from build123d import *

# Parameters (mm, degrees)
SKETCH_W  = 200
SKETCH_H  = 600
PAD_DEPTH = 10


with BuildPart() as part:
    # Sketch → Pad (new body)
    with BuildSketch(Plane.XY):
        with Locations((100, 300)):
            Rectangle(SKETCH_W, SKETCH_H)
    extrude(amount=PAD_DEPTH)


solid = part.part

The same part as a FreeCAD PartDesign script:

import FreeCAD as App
import Part
import Sketcher
from FreeCAD import Vector

doc = App.newDocument("Part")
params = doc.addObject("Spreadsheet::Sheet", "Params")
for row, (alias, value) in enumerate([
    ("sketch1_width", "200 mm"),
    ("sketch1_height", "600 mm"),
    ("pad1_length", "10 mm"),
], start=1):
    params.set(f"A{row}", alias)
    params.set(f"B{row}", "=" + value)
    params.setAlias(f"B{row}", alias)

body = doc.addObject("PartDesign::Body", "Body")

# Sketch on XY plane
sketch1 = body.newObject("Sketcher::SketchObject", "Sketch")
sketch1.AttachmentSupport = (doc.getObject("XY_Plane"), [""])
sketch1.MapMode = "FlatFace"
sketch1.addGeometry(Part.LineSegment(Vector(0, 600, 0), Vector(0, 0, 0)), False)
sketch1.addGeometry(Part.LineSegment(Vector(0, 0, 0), Vector(200, 0, 0)), False)
sketch1.addGeometry(Part.LineSegment(Vector(200, 0, 0), Vector(200, 600, 0)), False)
sketch1.addGeometry(Part.LineSegment(Vector(200, 600, 0), Vector(0, 600, 0)), False)
sketch1.addConstraint(Sketcher.Constraint("Coincident", 0, 2, 1, 1))
sketch1.addConstraint(Sketcher.Constraint("Coincident", 1, 2, 2, 1))
sketch1.addConstraint(Sketcher.Constraint("Coincident", 2, 2, 3, 1))
sketch1.addConstraint(Sketcher.Constraint("Coincident", 3, 2, 0, 1))
sketch1.addConstraint(Sketcher.Constraint("Vertical", 0))
sketch1.addConstraint(Sketcher.Constraint("Horizontal", 1))
sketch1.addConstraint(Sketcher.Constraint("Vertical", 2))
sketch1.addConstraint(Sketcher.Constraint("Horizontal", 3))
sketch1.addConstraint(Sketcher.Constraint("Coincident", 0, 2, -1, 1))
sketch1.addConstraint(Sketcher.Constraint("DistanceX", 1, 1, 1, 2, 200.0))
sketch1.addConstraint(Sketcher.Constraint("DistanceY", 0, 2, 0, 1, 600.0))
sketch1.setExpression("Constraints[9]", "Params.sketch1_width")
sketch1.setExpression("Constraints[10]", "Params.sketch1_height")
pad1 = body.newObject("PartDesign::Pad", "Pad")
pad1.Profile = sketch1
pad1.setExpression("Length", "Params.pad1_length")

doc.recompute()
